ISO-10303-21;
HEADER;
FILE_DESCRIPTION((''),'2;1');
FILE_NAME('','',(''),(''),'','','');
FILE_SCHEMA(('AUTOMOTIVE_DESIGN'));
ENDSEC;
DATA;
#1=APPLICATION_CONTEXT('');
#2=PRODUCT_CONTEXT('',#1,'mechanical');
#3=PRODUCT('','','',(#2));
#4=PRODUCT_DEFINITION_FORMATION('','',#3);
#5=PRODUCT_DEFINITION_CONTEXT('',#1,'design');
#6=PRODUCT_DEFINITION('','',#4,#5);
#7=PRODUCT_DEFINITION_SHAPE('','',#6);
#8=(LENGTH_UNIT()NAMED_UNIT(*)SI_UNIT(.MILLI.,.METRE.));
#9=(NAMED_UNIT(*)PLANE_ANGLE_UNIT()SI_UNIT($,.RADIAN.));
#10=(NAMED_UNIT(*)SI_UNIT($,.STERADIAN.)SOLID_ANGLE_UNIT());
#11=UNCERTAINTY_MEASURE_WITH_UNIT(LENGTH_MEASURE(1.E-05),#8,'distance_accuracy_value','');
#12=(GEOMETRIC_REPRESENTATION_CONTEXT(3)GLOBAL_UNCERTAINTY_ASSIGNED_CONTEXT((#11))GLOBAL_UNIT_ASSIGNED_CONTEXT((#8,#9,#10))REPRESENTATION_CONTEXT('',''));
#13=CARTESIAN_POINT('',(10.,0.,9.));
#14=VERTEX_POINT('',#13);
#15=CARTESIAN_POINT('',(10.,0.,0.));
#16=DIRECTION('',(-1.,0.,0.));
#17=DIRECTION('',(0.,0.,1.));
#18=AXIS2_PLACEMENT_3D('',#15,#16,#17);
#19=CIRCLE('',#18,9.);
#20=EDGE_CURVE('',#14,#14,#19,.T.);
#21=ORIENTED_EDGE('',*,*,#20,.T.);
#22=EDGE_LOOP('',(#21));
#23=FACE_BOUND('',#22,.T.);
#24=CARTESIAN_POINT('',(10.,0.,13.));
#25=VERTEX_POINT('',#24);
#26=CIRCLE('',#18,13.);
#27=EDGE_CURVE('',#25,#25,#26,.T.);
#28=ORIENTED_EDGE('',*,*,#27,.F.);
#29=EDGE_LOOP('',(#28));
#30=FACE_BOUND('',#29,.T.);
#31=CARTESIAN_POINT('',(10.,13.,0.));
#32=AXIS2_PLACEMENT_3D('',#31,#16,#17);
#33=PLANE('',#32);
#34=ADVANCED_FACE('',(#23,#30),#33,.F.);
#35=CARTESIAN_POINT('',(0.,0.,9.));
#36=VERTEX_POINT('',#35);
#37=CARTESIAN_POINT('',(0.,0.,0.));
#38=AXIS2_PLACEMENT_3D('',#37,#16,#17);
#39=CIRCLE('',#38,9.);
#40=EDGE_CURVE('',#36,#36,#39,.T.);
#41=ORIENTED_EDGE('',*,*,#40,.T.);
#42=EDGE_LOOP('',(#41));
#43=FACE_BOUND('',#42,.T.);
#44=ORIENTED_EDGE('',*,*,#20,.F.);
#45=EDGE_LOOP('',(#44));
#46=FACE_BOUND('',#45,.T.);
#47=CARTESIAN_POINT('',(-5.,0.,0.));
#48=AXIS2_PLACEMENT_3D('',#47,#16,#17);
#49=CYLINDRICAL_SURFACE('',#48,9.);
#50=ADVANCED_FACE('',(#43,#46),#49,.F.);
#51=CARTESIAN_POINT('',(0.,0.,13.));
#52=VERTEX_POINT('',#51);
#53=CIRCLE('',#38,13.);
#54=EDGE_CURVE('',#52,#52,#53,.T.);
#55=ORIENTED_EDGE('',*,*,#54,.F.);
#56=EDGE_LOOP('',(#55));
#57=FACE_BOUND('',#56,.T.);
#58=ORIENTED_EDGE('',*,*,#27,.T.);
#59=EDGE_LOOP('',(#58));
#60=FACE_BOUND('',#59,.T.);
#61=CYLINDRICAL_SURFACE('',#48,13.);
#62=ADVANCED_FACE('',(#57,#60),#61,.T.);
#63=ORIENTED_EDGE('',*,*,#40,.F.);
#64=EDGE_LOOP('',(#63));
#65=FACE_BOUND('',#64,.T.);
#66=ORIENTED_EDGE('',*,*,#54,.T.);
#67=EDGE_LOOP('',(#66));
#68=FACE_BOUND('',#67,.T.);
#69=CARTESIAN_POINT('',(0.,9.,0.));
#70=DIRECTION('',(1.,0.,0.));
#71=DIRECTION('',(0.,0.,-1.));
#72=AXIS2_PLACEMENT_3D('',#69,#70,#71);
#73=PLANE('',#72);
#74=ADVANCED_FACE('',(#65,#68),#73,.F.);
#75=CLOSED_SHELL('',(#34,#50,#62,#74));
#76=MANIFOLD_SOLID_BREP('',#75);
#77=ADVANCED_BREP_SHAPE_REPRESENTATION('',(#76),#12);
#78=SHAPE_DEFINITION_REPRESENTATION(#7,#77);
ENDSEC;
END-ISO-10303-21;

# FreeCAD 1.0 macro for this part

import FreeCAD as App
import Part
import Sketcher

V = App.Vector
Q = App.Units.Quantity


def add_polygon(sketch, points):
    """Adds a closed chain of lines whose ends are joined by coincident constraints."""
    first, n = sketch.GeometryCount, len(points)
    for a, b in zip(points, points[1:] + points[:1]):
        sketch.addGeometry(Part.LineSegment(App.Vector(*a, 0), App.Vector(*b, 0)), False)
    for i in range(n):
        sketch.addConstraint(Sketcher.Constraint("Coincident", first + i, 2, first + (i + 1) % n, 1))

doc = App.newDocument("Part")
body = doc.addObject("PartDesign::Body", "Body")

# Sketch on XY plane
sketch1 = doc.addObject("Sketcher::SketchObject", "Sketch")
body.addObject(sketch1)
sketch1.AttachmentSupport = (doc.XY_Plane, [""])
sketch1.MapMode = "FlatFace"
add_polygon(sketch1, [(0, 13), (0, 9), (10, 9), (10, 13)])  # lines 0-3
sketch1.addConstraint([
    Sketcher.Constraint("Vertical", 0),
    Sketcher.Constraint("Horizontal", 1),
    Sketcher.Constraint("Vertical", 2),
    Sketcher.Constraint("Horizontal", 3),
    Sketcher.Constraint("PointOnObject", 0, 2, -2),
    Sketcher.Constraint("DistanceX", 1, 1, 1, 2, Q("10 mm")),
    Sketcher.Constraint("DistanceY", 0, 2, 0, 1, Q("4 mm")),
    Sketcher.Constraint("DistanceY", -1, 1, 0, 2, Q("9 mm")),
])
revolution = doc.addObject("PartDesign::Revolution", "Revolution")
body.addObject(revolution)
revolution.Profile = sketch1
revolution.ReferenceAxis = (sketch1, ["H_Axis"])
revolution.Angle = 360

doc.recompute()
